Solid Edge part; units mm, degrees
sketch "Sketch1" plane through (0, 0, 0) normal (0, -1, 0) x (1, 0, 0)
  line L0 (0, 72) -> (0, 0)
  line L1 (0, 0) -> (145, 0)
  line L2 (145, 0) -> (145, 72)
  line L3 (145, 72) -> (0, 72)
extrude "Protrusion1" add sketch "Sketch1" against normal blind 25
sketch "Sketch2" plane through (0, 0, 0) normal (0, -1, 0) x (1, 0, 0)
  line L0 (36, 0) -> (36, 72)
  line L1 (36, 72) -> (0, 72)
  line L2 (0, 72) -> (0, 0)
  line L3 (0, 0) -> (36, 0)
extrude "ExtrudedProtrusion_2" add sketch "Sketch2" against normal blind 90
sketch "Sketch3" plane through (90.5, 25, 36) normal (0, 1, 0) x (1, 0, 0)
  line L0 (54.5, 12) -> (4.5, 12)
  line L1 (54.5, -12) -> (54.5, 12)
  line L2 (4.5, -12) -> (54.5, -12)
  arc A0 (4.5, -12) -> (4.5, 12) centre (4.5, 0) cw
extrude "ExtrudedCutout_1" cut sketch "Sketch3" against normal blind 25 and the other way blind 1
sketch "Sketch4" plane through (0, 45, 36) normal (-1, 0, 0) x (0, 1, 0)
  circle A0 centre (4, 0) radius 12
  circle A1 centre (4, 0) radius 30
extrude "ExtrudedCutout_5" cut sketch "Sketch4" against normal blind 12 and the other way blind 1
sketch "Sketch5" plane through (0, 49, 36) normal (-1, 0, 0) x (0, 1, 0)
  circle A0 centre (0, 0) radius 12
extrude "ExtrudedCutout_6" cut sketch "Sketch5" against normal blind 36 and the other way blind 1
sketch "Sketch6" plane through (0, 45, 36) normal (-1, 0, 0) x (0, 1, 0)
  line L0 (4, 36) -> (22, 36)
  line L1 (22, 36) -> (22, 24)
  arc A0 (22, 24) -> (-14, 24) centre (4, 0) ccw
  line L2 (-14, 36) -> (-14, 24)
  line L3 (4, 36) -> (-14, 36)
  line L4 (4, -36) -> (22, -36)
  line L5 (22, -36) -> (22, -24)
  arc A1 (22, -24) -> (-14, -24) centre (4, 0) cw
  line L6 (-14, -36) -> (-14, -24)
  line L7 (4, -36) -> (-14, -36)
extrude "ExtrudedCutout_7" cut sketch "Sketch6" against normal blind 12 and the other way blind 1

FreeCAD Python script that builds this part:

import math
import FreeCAD as App
import Part
import Sketcher

V = App.Vector
Q = App.Units.Quantity


def add_polygon(sketch, points):
    """Adds a closed chain of lines whose ends are joined by coincident constraints."""
    first, n = sketch.GeometryCount, len(points)
    for a, b in zip(points, points[1:] + points[:1]):
        sketch.addGeometry(Part.LineSegment(App.Vector(*a, 0), App.Vector(*b, 0)), False)
    for i in range(n):
        sketch.addConstraint(Sketcher.Constraint("Coincident", first + i, 2, first + (i + 1) % n, 1))

doc = App.newDocument("Part")
body = doc.addObject("PartDesign::Body", "Body")

sketch1 = body.newObject("Sketcher::SketchObject", "Sketch")
sketch1.AttachmentSupport = (doc.getObject("XZ_Plane"), [""])
sketch1.MapMode = "FlatFace"
add_polygon(sketch1, [(145, 72), (0, 72), (0, 0), (145, 0)])
sketch1.addConstraint([
    Sketcher.Constraint("Horizontal", 0),
    Sketcher.Constraint("Vertical", 1),
    Sketcher.Constraint("Horizontal", 2),
    Sketcher.Constraint("Vertical", 3),
    Sketcher.Constraint("Coincident", 1, 2, -1, 1),
    Sketcher.Constraint("DistanceX", 0, 2, 0, 1, Q("145 mm")),
    Sketcher.Constraint("DistanceY", 1, 2, 1, 1, Q("72 mm")),
])
pad1 = body.newObject("PartDesign::Pad", "Pad")
pad1.Profile = sketch1
pad1.Length = 25
pad1.Reversed = True

sketch2 = body.newObject("Sketcher::SketchObject", "Sketch001")
sketch2.AttachmentSupport = (doc.getObject("XZ_Plane"), [""])
sketch2.MapMode = "FlatFace"
add_polygon(sketch2, [(0, 0), (36, 0), (36, 72), (0, 72)])
sketch2.addConstraint([
    Sketcher.Constraint("Horizontal", 0),
    Sketcher.Constraint("Vertical", 1),
    Sketcher.Constraint("Horizontal", 2),
    Sketcher.Constraint("Vertical", 3),
    Sketcher.Constraint("Coincident", 3, 2, -1, 1),
    Sketcher.Constraint("DistanceX", 0, 1, 0, 2, Q("36 mm")),
    Sketcher.Constraint("DistanceY", 1, 1, 1, 2, Q("72 mm")),
])
pad2 = body.newObject("PartDesign::Pad", "Pad001")
pad2.Profile = sketch2
pad2.Length = 90
pad2.Reversed = True

sketch3 = body.newObject("Sketcher::SketchObject", "Sketch002")
sketch3.AttachmentSupport = (doc.getObject("XZ_Plane"), [""])
sketch3.MapMode = "FlatFace"
sketch3.AttachmentOffset = App.Placement(V(0, 0, -25), App.Rotation())
sketch3.addGeometry([
    Part.LineSegment(V(145, 48, 0), V(145, 24, 0)),
    Part.LineSegment(V(145, 24, 0), V(95, 24, 0)),
    Part.ArcOfCircle(Part.Circle(V(95, 36, 0), V(0, 0, 1), 12), math.radians(90), math.radians(270)),
    Part.LineSegment(V(95, 48, 0), V(145, 48, 0)),
], False)
sketch3.addConstraint([
    Sketcher.Constraint("Coincident", 0, 2, 1, 1),
    Sketcher.Constraint("Tangent", 1, 2, 2, 2),
    Sketcher.Constraint("Tangent", 2, 1, 3, 1),
    Sketcher.Constraint("Coincident", 3, 2, 0, 1),
    Sketcher.Constraint("Vertical", 0),
    Sketcher.Constraint("Horizontal", 1),
    Sketcher.Constraint("Horizontal", 3),
    Sketcher.Constraint("Radius", 2, Q("12 mm")),
    Sketcher.Constraint("DistanceX", 1, 2, 1, 1, Q("50 mm")),
    Sketcher.Constraint("DistanceX", -1, 1, 2, 3, Q("95 mm")),
    Sketcher.Constraint("DistanceY", -1, 1, 2, 3, Q("36 mm")),
])
pocket1 = body.newObject("PartDesign::Pocket", "Pocket")
pocket1.Profile = sketch3
pocket1.Type = "ThroughAll"
pocket1.Midplane = True

sketch4 = body.newObject("Sketcher::SketchObject", "Sketch003")
sketch4.AttachmentSupport = (doc.getObject("YZ_Plane"), [""])
sketch4.MapMode = "FlatFace"
sketch4.addGeometry([
    Part.Circle(V(49, 36, 0), V(0, 0, 1), 30),
    Part.Circle(V(49, 36, 0), V(0, 0, 1), 12),
], False)
sketch4.addConstraint([
    Sketcher.Constraint("Coincident", 1, 3, 0, 3),
    Sketcher.Constraint("Diameter", 0, Q("60 mm")),
    Sketcher.Constraint("Diameter", 1, Q("24 mm")),
    Sketcher.Constraint("DistanceX", -1, 1, 0, 3, Q("49 mm")),
    Sketcher.Constraint("DistanceY", -1, 1, 0, 3, Q("36 mm")),
])
pocket2 = body.newObject("PartDesign::Pocket", "Pocket001")
pocket2.Profile = sketch4
pocket2.Type = "TwoLengths"
pocket2.Length = 12
pocket2.Length2 = 1
pocket2.Reversed = True

sketch5 = body.newObject("Sketcher::SketchObject", "Sketch004")
sketch5.AttachmentSupport = (doc.getObject("YZ_Plane"), [""])
sketch5.MapMode = "FlatFace"
sketch5.addGeometry(Part.Circle(V(49, 36, 0), V(0, 0, 1), 12), False)
sketch5.addConstraint([
    Sketcher.Constraint("Diameter", 0, Q("24 mm")),
    Sketcher.Constraint("DistanceX", -1, 1, 0, 3, Q("49 mm")),
    Sketcher.Constraint("DistanceY", -1, 1, 0, 3, Q("36 mm")),
])
pocket3 = body.newObject("PartDesign::Pocket", "Pocket002")
pocket3.Profile = sketch5
pocket3.Type = "ThroughAll"
pocket3.Midplane = True

sketch6 = body.newObject("Sketcher::SketchObject", "Sketch005")
sketch6.AttachmentSupport = (doc.getObject("YZ_Plane"), [""])
sketch6.MapMode = "FlatFace"
sketch6.addGeometry([
    Part.LineSegment(V(67, 0, 0), V(31, 0, 0)),
    Part.LineSegment(V(31, 0, 0), V(31, 12, 0)),
    Part.ArcOfCircle(Part.Circle(V(49, 36, 0), V(0, 0, 1), 30), math.radians(-127), math.radians(-53)),
    Part.LineSegment(V(67, 12, 0), V(67, 0, 0)),
    Part.LineSegment(V(31, 72, 0), V(67, 72, 0)),
    Part.LineSegment(V(67, 72, 0), V(67, 60, 0)),
    Part.ArcOfCircle(Part.Circle(V(49, 36, 0), V(0, 0, 1), 30), math.radians(53), math.radians(127)),
    Part.LineSegment(V(31, 60, 0), V(31, 72, 0)),
], False)
sketch6.addConstraint([
    Sketcher.Constraint("Coincident", 0, 2, 1, 1),
    Sketcher.Constraint("Coincident", 1, 2, 2, 1),
    Sketcher.Constraint("Coincident", 2, 2, 3, 1),
    Sketcher.Constraint("Coincident", 3, 2, 0, 1),
    Sketcher.Constraint("Coincident", 4, 2, 5, 1),
    Sketcher.Constraint("Coincident", 5, 2, 6, 1),
    Sketcher.Constraint("Coincident", 6, 2, 7, 1),
    Sketcher.Constraint("Coincident", 7, 2, 4, 1),
    Sketcher.Constraint("Horizontal", 0),
    Sketcher.Constraint("Vertical", 1),
    Sketcher.Constraint("Vertical", 3),
    Sketcher.Constraint("Horizontal", 4),
    Sketcher.Constraint("Vertical", 5),
    Sketcher.Constraint("Vertical", 7),
    Sketcher.Constraint("Coincident", 6, 3, 2, 3),
    Sketcher.Constraint("Equal", 2, 6),
    Sketcher.Constraint("PointOnObject", 0, 2, -1),
    Sketcher.Constraint("Horizontal", 1, 2, 2, 2),
    Sketcher.Constraint("Horizontal", 5, 2, 6, 2),
    Sketcher.Constraint("Vertical", 3, 2, 4, 2),
    Sketcher.Constraint("Equal", 3, 5),
    Sketcher.Constraint("Radius", 2, Q("30 mm")),
    Sketcher.Constraint("DistanceX", 0, 2, 0, 1, Q("36 mm")),
    Sketcher.Constraint("DistanceY", 1, 1, 1, 2, Q("12 mm")),
    Sketcher.Constraint("DistanceX", -1, 1, 2, 3, Q("49 mm")),
])
pocket4 = body.newObject("PartDesign::Pocket", "Pocket003")
pocket4.Profile = sketch6
pocket4.Type = "TwoLengths"
pocket4.Length = 12
pocket4.Length2 = 1
pocket4.Reversed = True

doc.recompute()
